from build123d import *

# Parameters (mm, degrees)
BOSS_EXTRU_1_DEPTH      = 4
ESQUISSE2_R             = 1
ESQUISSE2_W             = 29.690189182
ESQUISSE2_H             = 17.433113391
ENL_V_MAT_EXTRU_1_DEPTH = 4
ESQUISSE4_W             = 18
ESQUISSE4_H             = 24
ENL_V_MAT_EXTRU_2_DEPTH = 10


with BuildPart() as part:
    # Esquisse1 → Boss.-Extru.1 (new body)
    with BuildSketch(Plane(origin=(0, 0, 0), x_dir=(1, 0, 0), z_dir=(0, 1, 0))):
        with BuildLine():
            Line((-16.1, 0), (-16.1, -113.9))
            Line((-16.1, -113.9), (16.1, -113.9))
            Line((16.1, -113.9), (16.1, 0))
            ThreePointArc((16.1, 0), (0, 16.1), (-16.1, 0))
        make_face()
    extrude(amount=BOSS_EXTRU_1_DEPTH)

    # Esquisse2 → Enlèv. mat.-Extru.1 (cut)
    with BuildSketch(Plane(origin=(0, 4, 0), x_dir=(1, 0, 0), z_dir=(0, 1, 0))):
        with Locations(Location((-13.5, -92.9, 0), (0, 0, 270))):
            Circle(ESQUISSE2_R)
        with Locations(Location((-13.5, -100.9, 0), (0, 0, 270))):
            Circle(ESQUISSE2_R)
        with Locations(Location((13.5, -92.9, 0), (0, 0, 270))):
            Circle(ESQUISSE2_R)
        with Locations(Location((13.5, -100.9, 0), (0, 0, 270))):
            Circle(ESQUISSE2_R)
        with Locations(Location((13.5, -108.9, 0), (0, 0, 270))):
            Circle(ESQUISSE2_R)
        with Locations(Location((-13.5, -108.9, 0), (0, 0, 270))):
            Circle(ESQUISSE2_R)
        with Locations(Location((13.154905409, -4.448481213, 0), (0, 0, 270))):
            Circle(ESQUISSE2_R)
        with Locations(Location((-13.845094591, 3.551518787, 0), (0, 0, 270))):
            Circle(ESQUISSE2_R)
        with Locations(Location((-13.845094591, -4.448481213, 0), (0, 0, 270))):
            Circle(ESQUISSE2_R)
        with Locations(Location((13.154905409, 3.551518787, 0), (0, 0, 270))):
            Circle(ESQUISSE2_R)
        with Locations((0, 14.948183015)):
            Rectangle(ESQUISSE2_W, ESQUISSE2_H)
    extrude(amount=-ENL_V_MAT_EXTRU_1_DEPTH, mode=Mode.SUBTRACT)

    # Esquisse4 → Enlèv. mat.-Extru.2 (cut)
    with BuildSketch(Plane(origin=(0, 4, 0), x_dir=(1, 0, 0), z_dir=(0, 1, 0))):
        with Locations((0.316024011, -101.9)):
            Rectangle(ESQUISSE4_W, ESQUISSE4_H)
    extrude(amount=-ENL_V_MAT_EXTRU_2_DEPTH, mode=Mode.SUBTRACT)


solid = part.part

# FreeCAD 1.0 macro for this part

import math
import FreeCAD as App
import Part
import Sketcher
Q = App.Units.Quantity


def add_polygon(sketch, points):
    """Adds a closed chain of lines whose ends are joined by coincident constraints."""
    first, n = sketch.GeometryCount, len(points)
    for a, b in zip(points, points[1:] + points[:1]):
        sketch.addGeometry(Part.LineSegment(App.Vector(*a, 0), App.Vector(*b, 0)), False)
    for i in range(n):
        sketch.addConstraint(Sketcher.Constraint("Coincident", first + i, 2, first + (i + 1) % n, 1))

doc = App.newDocument("Part")
params = doc.addObject("Spreadsheet::Sheet", "Params")
for row, (alias, value) in enumerate([
    ("sketch1_radius", "16.1 mm"),
    ("sketch1_height", "113.9 mm"),
    ("pad1_length", "4 mm"),
    ("sketch2_diameter", "2 mm"),
    ("pocket1_length", "4 mm"),
    ("sketch3_width", "18 mm"),
    ("sketch3_height", "24 mm"),
    ("pocket2_length", "10 mm"),
], start=1):
    params.set(f"A{row}", alias)
    params.set(f"B{row}", "=" + value)
    params.setAlias(f"B{row}", alias)

body = doc.addObject("PartDesign::Body", "Body")

# Sketch on XZ plane
sketch1 = body.newObject("Sketcher::SketchObject", "Sketch")
sketch1.AttachmentSupport = (doc.getObject("XZ_Plane"), [""])
sketch1.MapMode = "FlatFace"
sketch1.addGeometry(Part.LineSegment(App.Vector(-16, 0, 0), App.Vector(-16, 114, 0)), False)
sketch1.addGeometry(Part.LineSegment(App.Vector(-16, 114, 0), App.Vector(16, 114, 0)), False)
sketch1.addGeometry(Part.LineSegment(App.Vector(16, 114, 0), App.Vector(16, 0, 0)), False)
sketch1.addGeometry(Part.ArcOfCircle(Part.Circle(App.Vector(0, 0, 0), App.Vector(0, 0, 1), 16), math.radians(180), math.radians(360)), False)
sketch1.addConstraint(Sketcher.Constraint("Coincident", 0, 2, 1, 1))
sketch1.addConstraint(Sketcher.Constraint("Coincident", 1, 2, 2, 1))
sketch1.addConstraint(Sketcher.Constraint("Tangent", 2, 2, 3, 2))
sketch1.addConstraint(Sketcher.Constraint("Tangent", 3, 1, 0, 1))
sketch1.addConstraint(Sketcher.Constraint("Vertical", 0))
sketch1.addConstraint(Sketcher.Constraint("Horizontal", 1))
sketch1.addConstraint(Sketcher.Constraint("Vertical", 2))
sketch1.addConstraint(Sketcher.Constraint("Coincident", 3, 3, -1, 1))
sketch1.addConstraint(Sketcher.Constraint("Radius", 3, Q("16.1 mm")))
sketch1.addConstraint(Sketcher.Constraint("DistanceY", 0, 1, 0, 2, Q("113.9 mm")))
sketch1.setExpression("Constraints[8]", "Params.sketch1_radius")
sketch1.setExpression("Constraints[9]", "Params.sketch1_height")
pad1 = body.newObject("PartDesign::Pad", "Pad")
pad1.Profile = sketch1
pad1.setExpression("Length", "Params.pad1_length")
pad1.Reversed = True

# Sketch on XZ plane
sketch2 = body.newObject("Sketcher::SketchObject", "Sketch001")
sketch2.AttachmentSupport = (doc.getObject("XZ_Plane"), [""])
sketch2.MapMode = "FlatFace"
sketch2.AttachmentOffset = App.Placement(App.Vector(0, 0, -4), App.Rotation())
sketch2.addGeometry(Part.Circle(App.Vector(-13.5, 92.9, 0), App.Vector(0, 0, 1), 1), False)  # 0
sketch2.addGeometry(Part.Circle(App.Vector(-13.5, 100.9, 0), App.Vector(0, 0, 1), 1), False)  # 1
sketch2.addGeometry(Part.Circle(App.Vector(13.5, 92.9, 0), App.Vector(0, 0, 1), 1), False)  # 2
sketch2.addGeometry(Part.Circle(App.Vector(13.5, 100.9, 0), App.Vector(0, 0, 1), 1), False)  # 3
sketch2.addGeometry(Part.Circle(App.Vector(13.5, 108.9, 0), App.Vector(0, 0, 1), 1), False)  # 4
sketch2.addGeometry(Part.Circle(App.Vector(-13.5, 108.9, 0), App.Vector(0, 0, 1), 1), False)  # 5
sketch2.addGeometry(Part.Circle(App.Vector(13.2, 4.4, 0), App.Vector(0, 0, 1), 1), False)  # 6
sketch2.addGeometry(Part.Circle(App.Vector(-13.8, -3.6, 0), App.Vector(0, 0, 1), 1), False)  # 7
sketch2.addGeometry(Part.Circle(App.Vector(-13.8, 4.4, 0), App.Vector(0, 0, 1), 1), False)  # 8
sketch2.addGeometry(Part.Circle(App.Vector(13.2, -3.6, 0), App.Vector(0, 0, 1), 1), False)  # 9
add_polygon(sketch2, [(-14.8, -23.7), (-14.8, -6.2), (14.8, -6.2), (14.8, -23.7)])  # lines 10-13
sketch2.addConstraint(Sketcher.Constraint("Vertical", 10))
sketch2.addConstraint(Sketcher.Constraint("Horizontal", 11))
sketch2.addConstraint(Sketcher.Constraint("Vertical", 12))
sketch2.addConstraint(Sketcher.Constraint("Horizontal", 13))
sketch2.addConstraint(Sketcher.Constraint("Equal", 0, 1))
sketch2.addConstraint(Sketcher.Constraint("Equal", 1, 2))
sketch2.addConstraint(Sketcher.Constraint("Equal", 2, 3))
sketch2.addConstraint(Sketcher.Constraint("Equal", 3, 4))
sketch2.addConstraint(Sketcher.Constraint("Equal", 4, 5))
sketch2.addConstraint(Sketcher.Constraint("Equal", 5, 6))
sketch2.addConstraint(Sketcher.Constraint("Equal", 6, 7))
sketch2.addConstraint(Sketcher.Constraint("Equal", 7, 8))
sketch2.addConstraint(Sketcher.Constraint("Equal", 8, 9))
sketch2.addConstraint(Sketcher.Constraint("Symmetric", 0, 3, 2, 3, -2))
sketch2.addConstraint(Sketcher.Constraint("Symmetric", 1, 3, 3, 3, -2))
sketch2.addConstraint(Sketcher.Constraint("Symmetric", 4, 3, 5, 3, -2))
sketch2.addConstraint(Sketcher.Constraint("Horizontal", 6, 3, 8, 3))
sketch2.addConstraint(Sketcher.Constraint("Horizontal", 7, 3, 9, 3))
sketch2.addConstraint(Sketcher.Constraint("Vertical", 0, 3, 1, 3))
sketch2.addConstraint(Sketcher.Constraint("Vertical", 3, 3, 4, 3))
sketch2.addConstraint(Sketcher.Constraint("Vertical", 7, 3, 8, 3))
sketch2.addConstraint(Sketcher.Constraint("Vertical", 6, 3, 9, 3))
sketch2.addConstraint(Sketcher.Constraint("Diameter", 0, Q("2 mm")))
sketch2.addConstraint(Sketcher.Constraint("DistanceY", 0, 3, 1, 3, Q("8 mm")))
sketch2.addConstraint(Sketcher.Constraint("DistanceX", 0, 3, 2, 3, Q("27 mm")))
sketch2.addConstraint(Sketcher.Constraint("DistanceY", 3, 3, 4, 3, Q("8 mm")))
sketch2.addConstraint(Sketcher.Constraint("DistanceX", 7, 3, 6, 3, Q("27 mm")))
sketch2.addConstraint(Sketcher.Constraint("DistanceY", 7, 3, 6, 3, Q("8 mm")))
sketch2.addConstraint(Sketcher.Constraint("DistanceX", 10, 2, 7, 3, Q("1 mm")))
sketch2.addConstraint(Sketcher.Constraint("DistanceY", -1, 1, 0, 3, Q("92.9 mm")))
sketch2.addConstraint(Sketcher.Constraint("DistanceX", 11, 1, 11, 2, Q("29.690189 mm")))
sketch2.addConstraint(Sketcher.Constraint("DistanceY", 10, 1, 10, 2, Q("17.433113 mm")))
sketch2.addConstraint(Sketcher.Constraint("DistanceY", -1, 1, 6, 3, Q("4.448481 mm")))
sketch2.addConstraint(Sketcher.Constraint("DistanceY", 12, 2, -1, 1, Q("23.66474 mm")))
sketch2.addConstraint(Sketcher.Constraint("DistanceX", -1, 1, 6, 3, Q("13.154905 mm")))
sketch2.setExpression("Constraints[26]", "Params.sketch2_diameter")
pocket1 = body.newObject("PartDesign::Pocket", "Pocket")
pocket1.Profile = sketch2
pocket1.setExpression("Length", "Params.pocket1_length")
pocket1.Reversed = True

# Sketch on XZ plane
sketch3 = body.newObject("Sketcher::SketchObject", "Sketch002")
sketch3.AttachmentSupport = (doc.getObject("XZ_Plane"), [""])
sketch3.MapMode = "FlatFace"
sketch3.AttachmentOffset = App.Placement(App.Vector(0, 0, -4), App.Rotation())
add_polygon(sketch3, [(-9, 90), (-9, 114), (9, 114), (9, 90)])  # lines 0-3
sketch3.addConstraint(Sketcher.Constraint("Vertical", 0))
sketch3.addConstraint(Sketcher.Constraint("Horizontal", 1))
sketch3.addConstraint(Sketcher.Constraint("Vertical", 2))
sketch3.addConstraint(Sketcher.Constraint("Horizontal", 3))
sketch3.addConstraint(Sketcher.Constraint("DistanceX", 1, 1, 1, 2, Q("18 mm")))
sketch3.addConstraint(Sketcher.Constraint("DistanceY", 0, 1, 0, 2, Q("24 mm")))
sketch3.addConstraint(Sketcher.Constraint("DistanceY", -1, 1, 0, 2, Q("113.9 mm")))
sketch3.addConstraint(Sketcher.Constraint("DistanceX", 0, 2, -1, 1, Q("8.683976 mm")))
sketch3.setExpression("Constraints[8]", "Params.sketch3_width")
sketch3.setExpression("Constraints[9]", "Params.sketch3_height")
pocket2 = body.newObject("PartDesign::Pocket", "Pocket001")
pocket2.Profile = sketch3
pocket2.setExpression("Length", "Params.pocket2_length")
pocket2.Reversed = True

doc.recompute()
